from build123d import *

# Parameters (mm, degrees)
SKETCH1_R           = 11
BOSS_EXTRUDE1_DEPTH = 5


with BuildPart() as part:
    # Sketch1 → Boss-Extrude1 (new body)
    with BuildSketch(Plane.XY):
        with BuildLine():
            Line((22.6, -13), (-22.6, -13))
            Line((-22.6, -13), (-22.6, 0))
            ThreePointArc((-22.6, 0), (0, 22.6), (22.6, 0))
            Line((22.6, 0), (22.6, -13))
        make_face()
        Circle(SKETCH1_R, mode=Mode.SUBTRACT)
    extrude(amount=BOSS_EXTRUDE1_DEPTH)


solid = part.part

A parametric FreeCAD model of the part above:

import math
import FreeCAD as App
import Part
import Sketcher
Q = App.Units.Quantity

doc = App.newDocument("Part")
params = doc.addObject("Spreadsheet::Sheet", "Params")
for row, (alias, value) in enumerate([
    ("sketch1_diameter", "22 mm"),
    ("sketch1_radius", "22.6 mm"),
    ("sketch1_height", "13 mm"),
    ("pad1_length", "5 mm"),
], start=1):
    params.set(f"A{row}", alias)
    params.set(f"B{row}", "=" + value)
    params.setAlias(f"B{row}", alias)

body = doc.addObject("PartDesign::Body", "Body")

# Sketch on XY plane
sketch1 = body.newObject("Sketcher::SketchObject", "Sketch")
sketch1.AttachmentSupport = (doc.getObject("XY_Plane"), [""])
sketch1.MapMode = "FlatFace"
sketch1.addGeometry([
    Part.LineSegment(App.Vector(-23, -13, 0), App.Vector(23, -13, 0)),  # 0
    Part.LineSegment(App.Vector(23, -13, 0), App.Vector(23, 0, 0)),  # 1
    Part.ArcOfCircle(Part.Circle(App.Vector(0, 0, 0), App.Vector(0, 0, 1), 23), math.radians(0), math.radians(180)),  # 2
    Part.LineSegment(App.Vector(-23, 0, 0), App.Vector(-23, -13, 0)),  # 3
    Part.Circle(App.Vector(0, 0, 0), App.Vector(0, 0, 1), 11),  # 4
], False)
sketch1.addConstraint([
    Sketcher.Constraint("Coincident", 0, 2, 1, 1),
    Sketcher.Constraint("Tangent", 1, 2, 2, 1),
    Sketcher.Constraint("Tangent", 2, 2, 3, 1),
    Sketcher.Constraint("Coincident", 3, 2, 0, 1),
    Sketcher.Constraint("Horizontal", 0),
    Sketcher.Constraint("Vertical", 1),
    Sketcher.Constraint("Vertical", 3),
    Sketcher.Constraint("Coincident", 2, 3, -1, 1),
    Sketcher.Constraint("Coincident", 4, 3, -1, 1),
    Sketcher.Constraint("Diameter", 4, Q("22 mm")),
    Sketcher.Constraint("Radius", 2, Q("22.6 mm")),
    Sketcher.Constraint("DistanceY", 1, 1, 1, 2, Q("13 mm")),
])
sketch1.setExpression("Constraints[9]", "Params.sketch1_diameter")
sketch1.setExpression("Constraints[10]", "Params.sketch1_radius")
sketch1.setExpression("Constraints[11]", "Params.sketch1_height")
pad1 = body.newObject("PartDesign::Pad", "Pad")
pad1.Profile = sketch1
pad1.setExpression("Length", "Params.pad1_length")

doc.recompute()
